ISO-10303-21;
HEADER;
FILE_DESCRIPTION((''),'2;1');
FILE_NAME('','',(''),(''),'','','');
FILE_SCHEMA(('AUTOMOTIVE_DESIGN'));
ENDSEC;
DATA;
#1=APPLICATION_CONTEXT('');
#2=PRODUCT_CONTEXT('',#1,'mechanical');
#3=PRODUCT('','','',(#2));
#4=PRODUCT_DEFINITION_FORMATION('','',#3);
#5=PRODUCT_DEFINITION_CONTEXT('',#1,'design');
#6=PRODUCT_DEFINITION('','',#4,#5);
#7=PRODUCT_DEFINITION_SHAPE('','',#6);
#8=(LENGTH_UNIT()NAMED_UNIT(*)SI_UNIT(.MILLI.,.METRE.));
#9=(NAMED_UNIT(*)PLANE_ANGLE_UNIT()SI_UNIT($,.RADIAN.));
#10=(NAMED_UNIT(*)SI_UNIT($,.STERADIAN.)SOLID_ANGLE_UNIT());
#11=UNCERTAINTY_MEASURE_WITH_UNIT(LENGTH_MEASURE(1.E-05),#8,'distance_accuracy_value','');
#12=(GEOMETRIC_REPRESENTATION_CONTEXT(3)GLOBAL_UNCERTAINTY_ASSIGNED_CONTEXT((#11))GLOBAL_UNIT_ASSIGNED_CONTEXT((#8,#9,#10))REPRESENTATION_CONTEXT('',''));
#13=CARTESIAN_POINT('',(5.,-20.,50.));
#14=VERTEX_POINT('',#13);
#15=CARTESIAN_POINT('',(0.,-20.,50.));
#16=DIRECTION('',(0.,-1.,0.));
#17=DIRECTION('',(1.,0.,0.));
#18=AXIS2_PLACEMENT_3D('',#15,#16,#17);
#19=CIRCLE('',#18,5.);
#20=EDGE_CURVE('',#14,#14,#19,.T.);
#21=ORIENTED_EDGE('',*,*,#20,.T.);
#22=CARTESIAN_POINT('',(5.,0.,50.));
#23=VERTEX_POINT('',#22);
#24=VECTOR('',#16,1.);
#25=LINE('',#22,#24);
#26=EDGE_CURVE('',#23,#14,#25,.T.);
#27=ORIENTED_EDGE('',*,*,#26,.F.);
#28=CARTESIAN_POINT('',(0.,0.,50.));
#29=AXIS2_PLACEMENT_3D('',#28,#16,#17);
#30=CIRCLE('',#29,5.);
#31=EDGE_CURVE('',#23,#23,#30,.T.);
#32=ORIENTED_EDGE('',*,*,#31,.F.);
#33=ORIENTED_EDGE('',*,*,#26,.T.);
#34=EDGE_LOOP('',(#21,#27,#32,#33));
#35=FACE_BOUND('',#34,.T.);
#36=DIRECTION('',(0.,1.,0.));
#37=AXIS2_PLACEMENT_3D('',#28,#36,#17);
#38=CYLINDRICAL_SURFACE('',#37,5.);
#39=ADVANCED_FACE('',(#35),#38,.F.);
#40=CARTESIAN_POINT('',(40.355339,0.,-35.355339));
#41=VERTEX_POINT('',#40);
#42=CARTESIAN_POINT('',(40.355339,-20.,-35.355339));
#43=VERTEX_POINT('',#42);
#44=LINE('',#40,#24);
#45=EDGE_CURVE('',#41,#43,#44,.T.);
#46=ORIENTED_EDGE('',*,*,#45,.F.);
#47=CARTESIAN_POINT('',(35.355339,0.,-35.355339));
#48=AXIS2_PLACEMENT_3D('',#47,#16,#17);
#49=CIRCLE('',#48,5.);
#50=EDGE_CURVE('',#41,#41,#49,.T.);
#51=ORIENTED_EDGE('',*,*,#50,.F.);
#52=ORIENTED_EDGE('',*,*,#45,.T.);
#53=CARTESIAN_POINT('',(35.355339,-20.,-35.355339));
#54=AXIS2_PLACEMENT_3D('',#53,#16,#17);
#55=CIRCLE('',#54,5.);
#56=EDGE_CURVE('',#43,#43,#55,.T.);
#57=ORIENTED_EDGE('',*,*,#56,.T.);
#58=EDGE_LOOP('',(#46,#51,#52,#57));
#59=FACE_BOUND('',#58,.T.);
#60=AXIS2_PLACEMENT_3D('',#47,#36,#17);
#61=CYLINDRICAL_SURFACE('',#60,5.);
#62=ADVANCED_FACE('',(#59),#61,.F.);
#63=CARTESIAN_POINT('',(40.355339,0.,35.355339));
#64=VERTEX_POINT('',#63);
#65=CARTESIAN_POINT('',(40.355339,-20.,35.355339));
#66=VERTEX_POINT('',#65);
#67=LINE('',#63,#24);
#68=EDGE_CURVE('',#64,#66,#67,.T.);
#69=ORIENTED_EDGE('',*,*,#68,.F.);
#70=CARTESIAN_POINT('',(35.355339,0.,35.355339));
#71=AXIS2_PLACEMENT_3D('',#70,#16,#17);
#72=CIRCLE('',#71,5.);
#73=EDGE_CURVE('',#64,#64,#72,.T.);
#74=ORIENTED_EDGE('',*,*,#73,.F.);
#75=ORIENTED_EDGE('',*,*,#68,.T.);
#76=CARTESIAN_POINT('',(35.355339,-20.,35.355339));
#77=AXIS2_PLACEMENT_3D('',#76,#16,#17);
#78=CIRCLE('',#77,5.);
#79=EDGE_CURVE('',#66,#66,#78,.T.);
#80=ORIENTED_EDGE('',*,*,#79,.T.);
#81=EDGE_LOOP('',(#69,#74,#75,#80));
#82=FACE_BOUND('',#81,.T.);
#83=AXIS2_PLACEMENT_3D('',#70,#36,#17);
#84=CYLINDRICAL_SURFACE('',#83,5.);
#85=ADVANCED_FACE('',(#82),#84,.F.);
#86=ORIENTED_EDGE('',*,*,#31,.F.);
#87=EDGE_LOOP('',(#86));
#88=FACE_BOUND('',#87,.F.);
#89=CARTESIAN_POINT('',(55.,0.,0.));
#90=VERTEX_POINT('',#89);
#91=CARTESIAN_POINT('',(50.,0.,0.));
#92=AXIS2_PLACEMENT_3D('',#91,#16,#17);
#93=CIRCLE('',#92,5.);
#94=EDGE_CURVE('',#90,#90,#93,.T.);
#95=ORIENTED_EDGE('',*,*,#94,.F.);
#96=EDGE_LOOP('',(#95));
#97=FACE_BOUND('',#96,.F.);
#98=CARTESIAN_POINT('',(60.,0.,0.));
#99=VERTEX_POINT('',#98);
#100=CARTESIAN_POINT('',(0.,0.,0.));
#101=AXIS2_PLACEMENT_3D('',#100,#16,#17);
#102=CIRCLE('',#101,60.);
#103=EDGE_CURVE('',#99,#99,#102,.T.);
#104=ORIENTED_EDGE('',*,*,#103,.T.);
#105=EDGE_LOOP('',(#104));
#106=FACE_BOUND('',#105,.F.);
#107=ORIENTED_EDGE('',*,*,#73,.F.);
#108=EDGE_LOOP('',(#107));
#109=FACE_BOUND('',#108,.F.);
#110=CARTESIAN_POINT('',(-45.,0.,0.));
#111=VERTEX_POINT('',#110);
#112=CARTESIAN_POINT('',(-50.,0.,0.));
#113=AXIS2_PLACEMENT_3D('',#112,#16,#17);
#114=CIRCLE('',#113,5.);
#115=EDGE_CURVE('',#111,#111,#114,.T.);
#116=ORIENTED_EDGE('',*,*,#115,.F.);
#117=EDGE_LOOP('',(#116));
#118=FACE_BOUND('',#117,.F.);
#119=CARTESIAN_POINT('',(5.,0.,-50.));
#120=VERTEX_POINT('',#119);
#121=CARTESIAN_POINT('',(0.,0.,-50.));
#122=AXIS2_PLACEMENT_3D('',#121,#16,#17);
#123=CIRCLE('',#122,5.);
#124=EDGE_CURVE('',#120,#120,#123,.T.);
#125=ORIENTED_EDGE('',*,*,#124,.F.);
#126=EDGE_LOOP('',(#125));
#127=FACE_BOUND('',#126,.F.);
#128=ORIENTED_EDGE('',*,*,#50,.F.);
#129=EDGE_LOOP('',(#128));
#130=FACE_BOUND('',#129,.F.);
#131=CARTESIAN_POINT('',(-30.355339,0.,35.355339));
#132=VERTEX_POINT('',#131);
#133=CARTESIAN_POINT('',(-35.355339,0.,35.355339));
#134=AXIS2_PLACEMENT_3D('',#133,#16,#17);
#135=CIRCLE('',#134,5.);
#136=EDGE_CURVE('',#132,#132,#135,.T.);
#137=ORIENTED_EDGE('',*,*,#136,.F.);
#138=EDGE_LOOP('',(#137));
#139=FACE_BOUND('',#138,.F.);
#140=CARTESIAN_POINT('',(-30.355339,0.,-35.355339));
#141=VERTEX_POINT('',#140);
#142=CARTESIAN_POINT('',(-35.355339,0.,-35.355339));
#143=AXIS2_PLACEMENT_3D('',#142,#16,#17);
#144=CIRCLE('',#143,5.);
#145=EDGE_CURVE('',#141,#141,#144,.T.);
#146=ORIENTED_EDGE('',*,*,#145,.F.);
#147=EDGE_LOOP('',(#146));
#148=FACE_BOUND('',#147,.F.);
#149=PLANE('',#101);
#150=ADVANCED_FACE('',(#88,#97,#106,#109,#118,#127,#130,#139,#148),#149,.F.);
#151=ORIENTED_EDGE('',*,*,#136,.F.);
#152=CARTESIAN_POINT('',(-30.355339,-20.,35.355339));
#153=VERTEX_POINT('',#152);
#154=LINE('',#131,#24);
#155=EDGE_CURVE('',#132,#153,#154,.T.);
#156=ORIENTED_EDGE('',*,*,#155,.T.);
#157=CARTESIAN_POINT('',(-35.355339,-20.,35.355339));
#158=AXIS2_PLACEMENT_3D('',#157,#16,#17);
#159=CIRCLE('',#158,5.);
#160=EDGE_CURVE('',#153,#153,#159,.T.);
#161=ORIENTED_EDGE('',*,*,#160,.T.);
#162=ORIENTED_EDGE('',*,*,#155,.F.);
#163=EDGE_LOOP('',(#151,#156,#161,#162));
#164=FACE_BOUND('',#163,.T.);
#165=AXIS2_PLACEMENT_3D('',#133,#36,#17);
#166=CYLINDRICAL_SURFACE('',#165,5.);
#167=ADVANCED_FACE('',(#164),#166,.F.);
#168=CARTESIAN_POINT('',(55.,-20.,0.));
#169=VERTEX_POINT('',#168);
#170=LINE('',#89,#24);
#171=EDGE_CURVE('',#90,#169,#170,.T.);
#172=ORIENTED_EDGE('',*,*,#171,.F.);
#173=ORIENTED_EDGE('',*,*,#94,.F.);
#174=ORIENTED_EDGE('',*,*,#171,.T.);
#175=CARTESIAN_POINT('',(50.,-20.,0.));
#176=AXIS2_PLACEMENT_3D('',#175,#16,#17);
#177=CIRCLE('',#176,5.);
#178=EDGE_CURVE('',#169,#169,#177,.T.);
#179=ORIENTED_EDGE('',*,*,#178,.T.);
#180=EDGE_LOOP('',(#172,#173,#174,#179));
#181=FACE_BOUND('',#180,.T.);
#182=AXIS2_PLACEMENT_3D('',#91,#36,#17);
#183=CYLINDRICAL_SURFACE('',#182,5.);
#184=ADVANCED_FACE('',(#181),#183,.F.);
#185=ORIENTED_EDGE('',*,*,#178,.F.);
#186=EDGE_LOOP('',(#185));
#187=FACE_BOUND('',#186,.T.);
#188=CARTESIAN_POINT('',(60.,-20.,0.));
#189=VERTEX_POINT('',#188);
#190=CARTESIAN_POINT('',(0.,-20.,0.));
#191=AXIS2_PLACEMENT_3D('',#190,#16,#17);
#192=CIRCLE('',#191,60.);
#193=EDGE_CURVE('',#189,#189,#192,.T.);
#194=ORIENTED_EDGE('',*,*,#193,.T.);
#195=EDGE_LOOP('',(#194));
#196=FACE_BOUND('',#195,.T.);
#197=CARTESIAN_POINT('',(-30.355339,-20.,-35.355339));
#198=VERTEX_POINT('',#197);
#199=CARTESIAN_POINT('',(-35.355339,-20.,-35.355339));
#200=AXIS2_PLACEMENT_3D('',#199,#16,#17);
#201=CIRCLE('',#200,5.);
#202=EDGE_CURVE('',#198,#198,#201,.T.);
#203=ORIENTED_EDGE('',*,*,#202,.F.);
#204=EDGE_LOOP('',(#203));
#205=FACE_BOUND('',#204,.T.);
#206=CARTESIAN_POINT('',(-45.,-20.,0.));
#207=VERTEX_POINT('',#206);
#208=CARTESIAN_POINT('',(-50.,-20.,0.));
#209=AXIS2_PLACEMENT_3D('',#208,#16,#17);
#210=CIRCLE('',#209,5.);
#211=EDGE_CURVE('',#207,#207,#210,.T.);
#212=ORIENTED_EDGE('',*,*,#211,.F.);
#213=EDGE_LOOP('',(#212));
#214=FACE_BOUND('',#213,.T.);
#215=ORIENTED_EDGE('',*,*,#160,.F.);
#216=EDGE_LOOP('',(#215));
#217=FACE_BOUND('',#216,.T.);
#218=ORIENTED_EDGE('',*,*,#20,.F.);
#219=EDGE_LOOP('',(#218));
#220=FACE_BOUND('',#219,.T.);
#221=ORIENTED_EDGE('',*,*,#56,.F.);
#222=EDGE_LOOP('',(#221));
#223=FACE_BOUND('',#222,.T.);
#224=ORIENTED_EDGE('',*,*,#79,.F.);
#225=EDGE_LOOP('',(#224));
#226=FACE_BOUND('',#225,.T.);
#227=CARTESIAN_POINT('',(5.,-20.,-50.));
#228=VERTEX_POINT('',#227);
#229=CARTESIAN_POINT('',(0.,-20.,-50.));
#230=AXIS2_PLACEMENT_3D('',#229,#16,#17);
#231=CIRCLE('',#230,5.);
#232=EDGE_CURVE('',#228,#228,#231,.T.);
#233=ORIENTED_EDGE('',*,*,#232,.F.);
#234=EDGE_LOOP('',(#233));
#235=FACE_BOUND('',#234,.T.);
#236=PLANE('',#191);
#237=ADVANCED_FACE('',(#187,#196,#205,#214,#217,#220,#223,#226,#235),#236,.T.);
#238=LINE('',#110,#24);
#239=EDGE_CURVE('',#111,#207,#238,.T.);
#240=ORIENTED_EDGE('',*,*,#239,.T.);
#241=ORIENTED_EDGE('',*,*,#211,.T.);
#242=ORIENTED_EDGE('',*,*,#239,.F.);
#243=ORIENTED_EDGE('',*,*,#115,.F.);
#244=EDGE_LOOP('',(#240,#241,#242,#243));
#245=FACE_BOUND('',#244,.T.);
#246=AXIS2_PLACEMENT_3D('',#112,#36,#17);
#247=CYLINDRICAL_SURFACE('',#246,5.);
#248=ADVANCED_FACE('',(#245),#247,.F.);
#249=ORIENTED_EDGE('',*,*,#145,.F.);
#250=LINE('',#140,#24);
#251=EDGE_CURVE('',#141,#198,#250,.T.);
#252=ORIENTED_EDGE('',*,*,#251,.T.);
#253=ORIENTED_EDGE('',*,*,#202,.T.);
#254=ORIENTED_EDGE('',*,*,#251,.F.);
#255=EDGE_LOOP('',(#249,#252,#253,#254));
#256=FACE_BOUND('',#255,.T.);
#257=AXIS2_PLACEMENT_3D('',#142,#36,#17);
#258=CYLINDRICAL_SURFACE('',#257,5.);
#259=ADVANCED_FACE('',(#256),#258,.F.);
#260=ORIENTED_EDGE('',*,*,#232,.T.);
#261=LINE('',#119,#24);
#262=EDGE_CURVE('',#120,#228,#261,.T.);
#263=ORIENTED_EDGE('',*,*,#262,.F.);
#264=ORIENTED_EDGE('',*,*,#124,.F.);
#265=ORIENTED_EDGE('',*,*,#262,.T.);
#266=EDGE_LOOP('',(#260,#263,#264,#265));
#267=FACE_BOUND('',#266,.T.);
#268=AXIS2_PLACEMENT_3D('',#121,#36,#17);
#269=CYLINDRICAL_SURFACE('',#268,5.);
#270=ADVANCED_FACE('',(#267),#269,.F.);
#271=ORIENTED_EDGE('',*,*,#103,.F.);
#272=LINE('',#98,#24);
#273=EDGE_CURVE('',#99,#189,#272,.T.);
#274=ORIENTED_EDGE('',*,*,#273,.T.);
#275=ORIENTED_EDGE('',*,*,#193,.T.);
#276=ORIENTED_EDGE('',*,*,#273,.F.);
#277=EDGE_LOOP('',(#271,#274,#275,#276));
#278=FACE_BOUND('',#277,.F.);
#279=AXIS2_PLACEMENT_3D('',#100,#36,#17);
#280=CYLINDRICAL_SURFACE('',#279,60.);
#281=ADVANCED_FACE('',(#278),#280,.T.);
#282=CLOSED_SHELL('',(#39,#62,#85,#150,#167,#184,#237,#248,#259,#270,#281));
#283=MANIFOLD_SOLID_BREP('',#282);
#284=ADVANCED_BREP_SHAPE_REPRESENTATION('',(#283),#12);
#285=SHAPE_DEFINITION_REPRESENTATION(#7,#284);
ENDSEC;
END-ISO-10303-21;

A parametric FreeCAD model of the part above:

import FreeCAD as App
import Part
import Sketcher
from FreeCAD import Vector

doc = App.newDocument("Part")
body = doc.addObject("PartDesign::Body", "Body")

# Sketch on XZ plane
sketch1 = body.newObject("Sketcher::SketchObject", "Sketch")
sketch1.AttachmentSupport = (doc.getObject("XZ_Plane"), [""])
sketch1.MapMode = "FlatFace"
sketch1.addGeometry([
    Part.Circle(Vector(0, 0, 0), Vector(0, 0, 1), 60),  # 0
    Part.Circle(Vector(-35, -35, 0), Vector(0, 0, 1), 5),  # 1
    Part.Circle(Vector(0, -50, 0), Vector(0, 0, 1), 5),  # 2
    Part.Circle(Vector(35, -35, 0), Vector(0, 0, 1), 5),  # 3
    Part.Circle(Vector(-50, 0, 0), Vector(0, 0, 1), 5),  # 4
    Part.Circle(Vector(-35, 35, 0), Vector(0, 0, 1), 5),  # 5
    Part.Circle(Vector(50, 0, 0), Vector(0, 0, 1), 5),  # 6
    Part.Circle(Vector(0, 50, 0), Vector(0, 0, 1), 5),  # 7
    Part.Circle(Vector(35, 35, 0), Vector(0, 0, 1), 5),  # 8
], False)
sketch1.addConstraint([
    Sketcher.Constraint("Coincident", 0, 3, -1, 1),
    Sketcher.Constraint("Equal", 1, 2),
    Sketcher.Constraint("Equal", 2, 3),
    Sketcher.Constraint("Equal", 3, 4),
    Sketcher.Constraint("Equal", 4, 5),
    Sketcher.Constraint("Equal", 5, 6),
    Sketcher.Constraint("Equal", 6, 7),
    Sketcher.Constraint("Equal", 7, 8),
    Sketcher.Constraint("Symmetric", 3, 3, 5, 3, -1, 1),
    Sketcher.Constraint("Symmetric", 4, 3, 6, 3, -1, 1),
    Sketcher.Constraint("Symmetric", 2, 3, 7, 3, -1, 1),
    Sketcher.Constraint("Symmetric", 1, 3, 8, 3, -1, 1),
    Sketcher.Constraint("Symmetric", 1, 3, 3, 3, -2),
    Sketcher.Constraint("PointOnObject", 2, 3, -2),
    Sketcher.Constraint("PointOnObject", 4, 3, -1),
    Sketcher.Constraint("Diameter", 0, 120.0),
    Sketcher.Constraint("Diameter", 1, 10.0),
    Sketcher.Constraint("DistanceY", 2, 3, -1, 1, 50.0),
    Sketcher.Constraint("DistanceX", 4, 3, -1, 1, 50.0),
    Sketcher.Constraint("DistanceX", 1, 3, -1, 1, 35.355339),
    Sketcher.Constraint("DistanceY", 1, 3, -1, 1, 35.355339),
])
pad1 = body.newObject("PartDesign::Pad", "Pad")
pad1.Profile = sketch1
pad1.Length = 20

doc.recompute()
